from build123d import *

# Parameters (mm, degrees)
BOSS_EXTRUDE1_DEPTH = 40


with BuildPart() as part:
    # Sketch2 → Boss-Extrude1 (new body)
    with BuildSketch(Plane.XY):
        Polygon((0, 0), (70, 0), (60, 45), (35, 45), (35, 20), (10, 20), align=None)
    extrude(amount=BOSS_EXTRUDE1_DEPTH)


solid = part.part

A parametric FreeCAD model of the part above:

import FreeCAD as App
import Part
import Sketcher
Q = App.Units.Quantity

doc = App.newDocument("Part")
body = doc.addObject("PartDesign::Body", "Body")

# Sketch on XY plane
sketch1 = body.newObject("Sketcher::SketchObject", "Sketch")
sketch1.AttachmentSupport = (doc.getObject("XY_Plane"), [""])
sketch1.MapMode = "FlatFace"
sketch1.addGeometry(Part.LineSegment(App.Vector(0, 0, 0), App.Vector(70, 0, 0)), False)
sketch1.addGeometry(Part.LineSegment(App.Vector(70, 0, 0), App.Vector(60, 45, 0)), False)
sketch1.addGeometry(Part.LineSegment(App.Vector(60, 45, 0), App.Vector(35, 45, 0)), False)
sketch1.addGeometry(Part.LineSegment(App.Vector(35, 45, 0), App.Vector(35, 20, 0)), False)
sketch1.addGeometry(Part.LineSegment(App.Vector(35, 20, 0), App.Vector(10, 20, 0)), False)
sketch1.addGeometry(Part.LineSegment(App.Vector(10, 20, 0), App.Vector(0, 0, 0)), False)
sketch1.addConstraint(Sketcher.Constraint("Coincident", 0, 2, 1, 1))
sketch1.addConstraint(Sketcher.Constraint("Coincident", 1, 2, 2, 1))
sketch1.addConstraint(Sketcher.Constraint("Coincident", 2, 2, 3, 1))
sketch1.addConstraint(Sketcher.Constraint("Coincident", 3, 2, 4, 1))
sketch1.addConstraint(Sketcher.Constraint("Coincident", 4, 2, 5, 1))
sketch1.addConstraint(Sketcher.Constraint("Coincident", 5, 2, 0, 1))
sketch1.addConstraint(Sketcher.Constraint("Horizontal", 0))
sketch1.addConstraint(Sketcher.Constraint("Horizontal", 2))
sketch1.addConstraint(Sketcher.Constraint("Vertical", 3))
sketch1.addConstraint(Sketcher.Constraint("Horizontal", 4))
sketch1.addConstraint(Sketcher.Constraint("Coincident", 5, 2, -1, 1))
sketch1.addConstraint(Sketcher.Constraint("Equal", 2, 4))
sketch1.addConstraint(Sketcher.Constraint("Equal", 4, 3))
sketch1.addConstraint(Sketcher.Constraint("DistanceX", 0, 1, 0, 2, Q("70 mm")))
sketch1.addConstraint(Sketcher.Constraint("DistanceX", 2, 2, 2, 1, Q("25 mm")))
sketch1.addConstraint(Sketcher.Constraint("DistanceX", -1, 1, 1, 2, Q("60 mm")))
sketch1.addConstraint(Sketcher.Constraint("DistanceY", -1, 1, 1, 2, Q("45 mm")))
pad1 = body.newObject("PartDesign::Pad", "Pad")
pad1.Profile = sketch1
pad1.Length = 40

doc.recompute()
